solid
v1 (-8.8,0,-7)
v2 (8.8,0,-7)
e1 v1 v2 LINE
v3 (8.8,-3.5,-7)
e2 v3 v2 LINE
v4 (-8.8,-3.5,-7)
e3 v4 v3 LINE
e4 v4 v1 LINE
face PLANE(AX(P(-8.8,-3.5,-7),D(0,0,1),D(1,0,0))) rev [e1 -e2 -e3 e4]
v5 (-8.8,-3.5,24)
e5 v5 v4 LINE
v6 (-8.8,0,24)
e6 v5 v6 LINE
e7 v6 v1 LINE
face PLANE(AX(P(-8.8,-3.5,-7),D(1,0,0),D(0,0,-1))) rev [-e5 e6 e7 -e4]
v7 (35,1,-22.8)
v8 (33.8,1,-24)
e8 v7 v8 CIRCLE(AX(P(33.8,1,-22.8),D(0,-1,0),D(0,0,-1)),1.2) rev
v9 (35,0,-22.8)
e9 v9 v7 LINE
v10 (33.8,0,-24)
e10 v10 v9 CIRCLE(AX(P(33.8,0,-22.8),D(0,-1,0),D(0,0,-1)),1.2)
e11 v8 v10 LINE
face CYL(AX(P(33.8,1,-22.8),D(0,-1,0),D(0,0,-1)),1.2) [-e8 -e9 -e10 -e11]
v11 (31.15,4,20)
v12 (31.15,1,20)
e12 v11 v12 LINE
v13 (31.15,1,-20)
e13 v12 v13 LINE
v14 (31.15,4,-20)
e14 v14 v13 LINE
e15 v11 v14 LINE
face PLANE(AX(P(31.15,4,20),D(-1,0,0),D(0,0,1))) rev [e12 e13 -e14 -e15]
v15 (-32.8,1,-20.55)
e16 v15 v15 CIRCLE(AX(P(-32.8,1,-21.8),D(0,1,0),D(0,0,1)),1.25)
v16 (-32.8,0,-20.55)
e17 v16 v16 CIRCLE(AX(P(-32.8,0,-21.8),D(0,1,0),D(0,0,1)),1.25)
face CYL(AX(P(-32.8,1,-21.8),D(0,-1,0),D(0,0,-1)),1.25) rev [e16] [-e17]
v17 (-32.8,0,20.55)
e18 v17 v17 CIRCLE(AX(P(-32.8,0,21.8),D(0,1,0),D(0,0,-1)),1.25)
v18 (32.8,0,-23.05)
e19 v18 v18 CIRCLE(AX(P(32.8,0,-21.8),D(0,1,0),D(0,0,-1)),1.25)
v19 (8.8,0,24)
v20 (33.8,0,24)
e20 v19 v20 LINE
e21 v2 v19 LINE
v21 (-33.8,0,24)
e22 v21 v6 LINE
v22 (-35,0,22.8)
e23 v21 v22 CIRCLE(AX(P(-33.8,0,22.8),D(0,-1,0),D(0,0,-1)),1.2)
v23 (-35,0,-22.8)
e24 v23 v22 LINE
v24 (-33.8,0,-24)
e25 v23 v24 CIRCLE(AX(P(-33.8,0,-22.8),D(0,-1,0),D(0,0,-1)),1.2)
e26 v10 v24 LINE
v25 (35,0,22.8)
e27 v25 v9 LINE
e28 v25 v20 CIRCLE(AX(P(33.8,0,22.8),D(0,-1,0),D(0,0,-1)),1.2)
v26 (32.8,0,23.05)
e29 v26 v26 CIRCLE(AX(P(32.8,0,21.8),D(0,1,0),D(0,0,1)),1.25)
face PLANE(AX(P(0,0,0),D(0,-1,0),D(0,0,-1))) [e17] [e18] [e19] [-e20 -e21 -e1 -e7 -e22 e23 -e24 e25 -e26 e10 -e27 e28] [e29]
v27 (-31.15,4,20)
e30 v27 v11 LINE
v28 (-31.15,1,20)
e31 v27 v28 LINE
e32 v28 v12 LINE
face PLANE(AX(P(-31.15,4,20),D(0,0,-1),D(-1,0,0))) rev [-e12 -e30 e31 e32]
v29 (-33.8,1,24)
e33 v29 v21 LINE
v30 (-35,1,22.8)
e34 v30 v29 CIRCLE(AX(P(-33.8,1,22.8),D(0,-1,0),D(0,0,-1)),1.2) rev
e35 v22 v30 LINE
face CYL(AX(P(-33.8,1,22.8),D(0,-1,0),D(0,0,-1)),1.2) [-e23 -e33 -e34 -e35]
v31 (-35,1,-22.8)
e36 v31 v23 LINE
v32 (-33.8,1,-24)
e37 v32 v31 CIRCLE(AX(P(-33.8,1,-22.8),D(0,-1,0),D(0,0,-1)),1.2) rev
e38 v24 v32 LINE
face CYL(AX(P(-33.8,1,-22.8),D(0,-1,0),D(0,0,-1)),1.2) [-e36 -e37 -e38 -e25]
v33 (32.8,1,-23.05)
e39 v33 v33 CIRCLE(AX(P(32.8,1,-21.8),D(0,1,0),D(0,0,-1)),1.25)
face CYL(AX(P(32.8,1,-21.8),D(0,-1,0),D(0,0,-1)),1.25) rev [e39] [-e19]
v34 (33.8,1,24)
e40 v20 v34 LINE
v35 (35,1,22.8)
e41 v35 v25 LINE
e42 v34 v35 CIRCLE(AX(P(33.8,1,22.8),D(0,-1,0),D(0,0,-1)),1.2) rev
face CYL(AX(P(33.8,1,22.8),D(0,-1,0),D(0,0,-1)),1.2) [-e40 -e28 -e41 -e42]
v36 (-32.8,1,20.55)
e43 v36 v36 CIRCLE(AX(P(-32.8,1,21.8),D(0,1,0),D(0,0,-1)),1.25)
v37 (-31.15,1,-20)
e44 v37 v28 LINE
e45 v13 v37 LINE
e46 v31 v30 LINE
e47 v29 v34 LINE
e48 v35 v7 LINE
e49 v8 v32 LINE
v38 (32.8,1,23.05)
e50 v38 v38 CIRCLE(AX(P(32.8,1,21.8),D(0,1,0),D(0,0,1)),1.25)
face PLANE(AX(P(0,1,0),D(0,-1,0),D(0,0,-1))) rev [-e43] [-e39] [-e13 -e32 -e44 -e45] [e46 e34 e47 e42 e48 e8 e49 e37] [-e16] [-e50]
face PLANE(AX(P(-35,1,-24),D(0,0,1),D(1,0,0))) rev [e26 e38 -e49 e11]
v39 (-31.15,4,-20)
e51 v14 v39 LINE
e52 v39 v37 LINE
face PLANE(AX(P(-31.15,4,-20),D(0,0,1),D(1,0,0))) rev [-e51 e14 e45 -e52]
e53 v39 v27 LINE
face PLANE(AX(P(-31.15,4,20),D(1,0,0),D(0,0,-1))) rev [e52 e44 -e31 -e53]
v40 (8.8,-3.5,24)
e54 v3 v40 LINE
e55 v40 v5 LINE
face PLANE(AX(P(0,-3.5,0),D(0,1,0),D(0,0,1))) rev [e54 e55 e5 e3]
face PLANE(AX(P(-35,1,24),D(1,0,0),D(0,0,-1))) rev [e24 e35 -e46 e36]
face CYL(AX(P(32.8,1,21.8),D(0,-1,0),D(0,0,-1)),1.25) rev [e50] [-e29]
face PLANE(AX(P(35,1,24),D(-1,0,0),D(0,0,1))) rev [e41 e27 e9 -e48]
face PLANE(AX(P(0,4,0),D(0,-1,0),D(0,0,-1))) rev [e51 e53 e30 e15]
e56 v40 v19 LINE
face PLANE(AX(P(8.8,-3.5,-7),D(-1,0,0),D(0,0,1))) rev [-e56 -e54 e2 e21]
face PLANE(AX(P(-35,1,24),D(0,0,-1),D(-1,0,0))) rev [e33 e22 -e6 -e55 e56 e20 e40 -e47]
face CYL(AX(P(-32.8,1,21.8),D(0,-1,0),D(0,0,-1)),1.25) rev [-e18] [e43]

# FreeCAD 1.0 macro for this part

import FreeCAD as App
import Part
import Sketcher
from FreeCAD import Vector
Q = App.Units.Quantity


def edges_at(feature, points):
    """Names of the edges that pass closest to the given points."""
    edges = feature.Shape.Edges
    near = lambda p: min(range(len(edges)), key=lambda i: edges[i].distToShape(Part.Vertex(*p))[0])
    return sorted({f"Edge{near(p) + 1}" for p in points})

doc = App.newDocument("Part")
body = doc.addObject("PartDesign::Body", "Body")

# Sketch on XZ plane
sketch1 = body.newObject("Sketcher::SketchObject", "Sketch")
sketch1.AttachmentSupport = (doc.getObject("XZ_Plane"), [""])
sketch1.MapMode = "FlatFace"
sketch1.addGeometry([
    Part.LineSegment(Vector(-35, -24, 0), Vector(-35, 24, 0)),  # 0
    Part.LineSegment(Vector(-35, 24, 0), Vector(35, 24, 0)),  # 1
    Part.LineSegment(Vector(35, 24, 0), Vector(35, -24, 0)),  # 2
    Part.LineSegment(Vector(35, -24, 0), Vector(-35, -24, 0)),  # 3
    Part.Circle(Vector(-32.8, 21.8, 0), Vector(0, 0, 1), 1.2),  # 4
    Part.Circle(Vector(32.8, 21.8, 0), Vector(0, 0, 1), 1.2),  # 5
    Part.Circle(Vector(-32.8, -21.8, 0), Vector(0, 0, 1), 1.2),  # 6
    Part.Circle(Vector(32.8, -21.8, 0), Vector(0, 0, 1), 1.2),  # 7
], False)
sketch1.addConstraint([
    Sketcher.Constraint("Coincident", 0, 2, 1, 1),
    Sketcher.Constraint("Coincident", 1, 2, 2, 1),
    Sketcher.Constraint("Coincident", 2, 2, 3, 1),
    Sketcher.Constraint("Coincident", 3, 2, 0, 1),
    Sketcher.Constraint("Vertical", 0),
    Sketcher.Constraint("Horizontal", 1),
    Sketcher.Constraint("Vertical", 2),
    Sketcher.Constraint("Horizontal", 3),
    Sketcher.Constraint("Equal", 4, 5),
    Sketcher.Constraint("Equal", 5, 6),
    Sketcher.Constraint("Equal", 6, 7),
    Sketcher.Constraint("Symmetric", 5, 3, 6, 3, -1, 1),
    Sketcher.Constraint("Symmetric", 4, 3, 7, 3, -1, 1),
    Sketcher.Constraint("Symmetric", 0, 2, 2, 2, -1, 1),
    Sketcher.Constraint("Symmetric", 4, 3, 5, 3, -2),
    Sketcher.Constraint("Diameter", 4, Q("2.5 mm")),
    Sketcher.Constraint("DistanceX", 1, 1, 1, 2, Q("70 mm")),
    Sketcher.Constraint("DistanceY", 0, 1, 0, 2, Q("48 mm")),
    Sketcher.Constraint("DistanceX", 4, 3, -1, 1, Q("32.8 mm")),
    Sketcher.Constraint("DistanceY", -1, 1, 4, 3, Q("21.8 mm")),
])
pad1 = body.newObject("PartDesign::Pad", "Pad")
pad1.Profile = sketch1
pad1.Length = 1
pad1.Reversed = True

# Sketch on XZ plane
sketch2 = body.newObject("Sketcher::SketchObject", "Sketch001")
sketch2.AttachmentSupport = (doc.getObject("XZ_Plane"), [""])
sketch2.MapMode = "FlatFace"
sketch2.AttachmentOffset = App.Placement(Vector(0, 0, -1), App.Rotation())
sketch2.addGeometry([
    Part.LineSegment(Vector(-31, -20, 0), Vector(-31, 20, 0)),
    Part.LineSegment(Vector(-31, 20, 0), Vector(31, 20, 0)),
    Part.LineSegment(Vector(31, 20, 0), Vector(31, -20, 0)),
    Part.LineSegment(Vector(31, -20, 0), Vector(-31, -20, 0)),
], False)
sketch2.addConstraint([
    Sketcher.Constraint("Coincident", 0, 2, 1, 1),
    Sketcher.Constraint("Coincident", 1, 2, 2, 1),
    Sketcher.Constraint("Coincident", 2, 2, 3, 1),
    Sketcher.Constraint("Coincident", 3, 2, 0, 1),
    Sketcher.Constraint("Vertical", 0),
    Sketcher.Constraint("Horizontal", 1),
    Sketcher.Constraint("Vertical", 2),
    Sketcher.Constraint("Horizontal", 3),
    Sketcher.Constraint("Symmetric", 0, 2, 2, 2, -1, 1),
    Sketcher.Constraint("DistanceY", 0, 1, 0, 2, Q("40 mm")),
    Sketcher.Constraint("DistanceX", 1, 1, 1, 2, Q("62.3 mm")),
])
pad2 = body.newObject("PartDesign::Pad", "Pad001")
pad2.Profile = sketch2
pad2.Length = 3
pad2.Reversed = True

# Sketch on XZ plane
sketch3 = body.newObject("Sketcher::SketchObject", "Sketch002")
sketch3.AttachmentSupport = (doc.getObject("XZ_Plane"), [""])
sketch3.MapMode = "FlatFace"
sketch3.addGeometry([
    Part.LineSegment(Vector(-9, 24, 0), Vector(-9, -7, 0)),
    Part.LineSegment(Vector(-9, -7, 0), Vector(9, -7, 0)),
    Part.LineSegment(Vector(9, -7, 0), Vector(9, 24, 0)),
    Part.LineSegment(Vector(9, 24, 0), Vector(-9, 24, 0)),
], False)
sketch3.addConstraint([
    Sketcher.Constraint("Coincident", 0, 2, 1, 1),
    Sketcher.Constraint("Coincident", 1, 2, 2, 1),
    Sketcher.Constraint("Coincident", 2, 2, 3, 1),
    Sketcher.Constraint("Coincident", 3, 2, 0, 1),
    Sketcher.Constraint("Vertical", 0),
    Sketcher.Constraint("Horizontal", 1),
    Sketcher.Constraint("Vertical", 2),
    Sketcher.Constraint("Horizontal", 3),
    Sketcher.Constraint("DistanceY", 0, 2, 0, 1, Q("31 mm")),
    Sketcher.Constraint("DistanceX", 1, 1, 1, 2, Q("17.6 mm")),
    Sketcher.Constraint("DistanceY", 0, 2, -1, 1, Q("7 mm")),
    Sketcher.Constraint("DistanceX", 0, 2, -1, 1, Q("8.8 mm")),
])
pad3 = body.newObject("PartDesign::Pad", "Pad002")
pad3.Profile = sketch3
pad3.Length = 3.5
doc.recompute()

fillet = body.newObject("PartDesign::Fillet", "Fillet")
fillet.Base = (pad3, edges_at(pad3, [
    (35, 0.5, 24),
    (-35, 0.5, 24),
    (-35, 0.5, -24),
    (35, 0.5, -24),
]))
fillet.Radius = 1.2

doc.recompute()
